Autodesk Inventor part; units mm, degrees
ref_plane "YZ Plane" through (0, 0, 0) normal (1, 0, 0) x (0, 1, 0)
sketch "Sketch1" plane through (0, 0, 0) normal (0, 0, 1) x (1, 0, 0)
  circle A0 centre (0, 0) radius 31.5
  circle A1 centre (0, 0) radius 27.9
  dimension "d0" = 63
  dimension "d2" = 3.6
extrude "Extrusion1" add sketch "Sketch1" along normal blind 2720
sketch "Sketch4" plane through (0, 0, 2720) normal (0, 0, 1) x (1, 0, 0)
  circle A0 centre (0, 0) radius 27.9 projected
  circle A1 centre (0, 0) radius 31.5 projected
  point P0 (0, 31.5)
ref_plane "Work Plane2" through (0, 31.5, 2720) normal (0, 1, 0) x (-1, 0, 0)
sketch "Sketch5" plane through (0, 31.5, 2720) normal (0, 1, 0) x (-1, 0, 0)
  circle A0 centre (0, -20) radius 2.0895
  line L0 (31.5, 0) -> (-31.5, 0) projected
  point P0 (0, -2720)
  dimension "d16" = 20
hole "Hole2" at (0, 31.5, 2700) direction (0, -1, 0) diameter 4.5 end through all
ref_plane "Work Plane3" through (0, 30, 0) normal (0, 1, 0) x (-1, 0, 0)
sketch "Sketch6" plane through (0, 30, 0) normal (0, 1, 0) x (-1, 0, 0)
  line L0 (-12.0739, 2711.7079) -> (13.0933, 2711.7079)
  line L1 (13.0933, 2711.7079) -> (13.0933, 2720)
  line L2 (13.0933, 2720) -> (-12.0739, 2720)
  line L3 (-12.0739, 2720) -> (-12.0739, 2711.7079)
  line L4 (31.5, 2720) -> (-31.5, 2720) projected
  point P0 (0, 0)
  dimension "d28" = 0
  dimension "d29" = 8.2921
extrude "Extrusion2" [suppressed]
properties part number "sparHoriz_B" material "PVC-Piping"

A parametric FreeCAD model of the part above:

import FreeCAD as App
import Part
import Sketcher
from FreeCAD import Vector

doc = App.newDocument("Part")
params = doc.addObject("Spreadsheet::Sheet", "Params")
for row, (alias, value) in enumerate([
    ("sketch1_diameter", "63 mm"),
    ("sketch1_diameter2", "55.8 mm"),
    ("pad1_length", "2720 mm"),
    ("sketch2_diameter", "4.5 mm"),
    ("hole_diameter", "4.5 mm"),
], start=1):
    params.set(f"A{row}", alias)
    params.set(f"B{row}", "=" + value)
    params.setAlias(f"B{row}", alias)

body = doc.addObject("PartDesign::Body", "Body")

# Sketch on XY plane
sketch1 = doc.addObject("Sketcher::SketchObject", "Sketch")
body.addObject(sketch1)
sketch1.AttachmentSupport = (doc.XY_Plane, [""])
sketch1.MapMode = "FlatFace"
sketch1.addGeometry([
    Part.Circle(Vector(0, 0, 0), Vector(0, 0, 1), 32),
    Part.Circle(Vector(0, 0, 0), Vector(0, 0, 1), 28),
], False)
sketch1.addConstraint([
    Sketcher.Constraint("Coincident", 0, 3, -1, 1),
    Sketcher.Constraint("Coincident", 1, 3, -1, 1),
    Sketcher.Constraint("Diameter", 0, 63.0),
    Sketcher.Constraint("Diameter", 1, 55.8),
])
sketch1.setExpression("Constraints[2]", "Params.sketch1_diameter")
sketch1.setExpression("Constraints[3]", "Params.sketch1_diameter2")
pad1 = doc.addObject("PartDesign::Pad", "Pad")
body.addObject(pad1)
pad1.Profile = sketch1
pad1.setExpression("Length", "Params.pad1_length")

# Sketch on XZ plane
sketch2 = doc.addObject("Sketcher::SketchObject", "Sketch001")
body.addObject(sketch2)
sketch2.AttachmentSupport = (doc.XZ_Plane, [""])
sketch2.MapMode = "FlatFace"
sketch2.AttachmentOffset = App.Placement(Vector(0, 0, -31.5), App.Rotation())
sketch2.addGeometry(Part.Circle(Vector(0, 2700, 0), Vector(0, 0, 1), 2.2), False)
sketch2.addConstraint([
    Sketcher.Constraint("PointOnObject", 0, 3, -2),
    Sketcher.Constraint("Diameter", 0, 4.5),
    Sketcher.Constraint("DistanceY", -1, 1, 0, 3, 2700.0),
])
sketch2.setExpression("Constraints[1]", "Params.sketch2_diameter")
doc.recompute()
hole = doc.addObject("PartDesign::Hole", "Hole")
body.addObject(hole)
hole.Profile = sketch2
hole.ThreadType = "None"
hole.setExpression("Diameter", "Params.hole_diameter")
hole.DepthType = "ThroughAll"
hole.Reversed = True

doc.recompute()
